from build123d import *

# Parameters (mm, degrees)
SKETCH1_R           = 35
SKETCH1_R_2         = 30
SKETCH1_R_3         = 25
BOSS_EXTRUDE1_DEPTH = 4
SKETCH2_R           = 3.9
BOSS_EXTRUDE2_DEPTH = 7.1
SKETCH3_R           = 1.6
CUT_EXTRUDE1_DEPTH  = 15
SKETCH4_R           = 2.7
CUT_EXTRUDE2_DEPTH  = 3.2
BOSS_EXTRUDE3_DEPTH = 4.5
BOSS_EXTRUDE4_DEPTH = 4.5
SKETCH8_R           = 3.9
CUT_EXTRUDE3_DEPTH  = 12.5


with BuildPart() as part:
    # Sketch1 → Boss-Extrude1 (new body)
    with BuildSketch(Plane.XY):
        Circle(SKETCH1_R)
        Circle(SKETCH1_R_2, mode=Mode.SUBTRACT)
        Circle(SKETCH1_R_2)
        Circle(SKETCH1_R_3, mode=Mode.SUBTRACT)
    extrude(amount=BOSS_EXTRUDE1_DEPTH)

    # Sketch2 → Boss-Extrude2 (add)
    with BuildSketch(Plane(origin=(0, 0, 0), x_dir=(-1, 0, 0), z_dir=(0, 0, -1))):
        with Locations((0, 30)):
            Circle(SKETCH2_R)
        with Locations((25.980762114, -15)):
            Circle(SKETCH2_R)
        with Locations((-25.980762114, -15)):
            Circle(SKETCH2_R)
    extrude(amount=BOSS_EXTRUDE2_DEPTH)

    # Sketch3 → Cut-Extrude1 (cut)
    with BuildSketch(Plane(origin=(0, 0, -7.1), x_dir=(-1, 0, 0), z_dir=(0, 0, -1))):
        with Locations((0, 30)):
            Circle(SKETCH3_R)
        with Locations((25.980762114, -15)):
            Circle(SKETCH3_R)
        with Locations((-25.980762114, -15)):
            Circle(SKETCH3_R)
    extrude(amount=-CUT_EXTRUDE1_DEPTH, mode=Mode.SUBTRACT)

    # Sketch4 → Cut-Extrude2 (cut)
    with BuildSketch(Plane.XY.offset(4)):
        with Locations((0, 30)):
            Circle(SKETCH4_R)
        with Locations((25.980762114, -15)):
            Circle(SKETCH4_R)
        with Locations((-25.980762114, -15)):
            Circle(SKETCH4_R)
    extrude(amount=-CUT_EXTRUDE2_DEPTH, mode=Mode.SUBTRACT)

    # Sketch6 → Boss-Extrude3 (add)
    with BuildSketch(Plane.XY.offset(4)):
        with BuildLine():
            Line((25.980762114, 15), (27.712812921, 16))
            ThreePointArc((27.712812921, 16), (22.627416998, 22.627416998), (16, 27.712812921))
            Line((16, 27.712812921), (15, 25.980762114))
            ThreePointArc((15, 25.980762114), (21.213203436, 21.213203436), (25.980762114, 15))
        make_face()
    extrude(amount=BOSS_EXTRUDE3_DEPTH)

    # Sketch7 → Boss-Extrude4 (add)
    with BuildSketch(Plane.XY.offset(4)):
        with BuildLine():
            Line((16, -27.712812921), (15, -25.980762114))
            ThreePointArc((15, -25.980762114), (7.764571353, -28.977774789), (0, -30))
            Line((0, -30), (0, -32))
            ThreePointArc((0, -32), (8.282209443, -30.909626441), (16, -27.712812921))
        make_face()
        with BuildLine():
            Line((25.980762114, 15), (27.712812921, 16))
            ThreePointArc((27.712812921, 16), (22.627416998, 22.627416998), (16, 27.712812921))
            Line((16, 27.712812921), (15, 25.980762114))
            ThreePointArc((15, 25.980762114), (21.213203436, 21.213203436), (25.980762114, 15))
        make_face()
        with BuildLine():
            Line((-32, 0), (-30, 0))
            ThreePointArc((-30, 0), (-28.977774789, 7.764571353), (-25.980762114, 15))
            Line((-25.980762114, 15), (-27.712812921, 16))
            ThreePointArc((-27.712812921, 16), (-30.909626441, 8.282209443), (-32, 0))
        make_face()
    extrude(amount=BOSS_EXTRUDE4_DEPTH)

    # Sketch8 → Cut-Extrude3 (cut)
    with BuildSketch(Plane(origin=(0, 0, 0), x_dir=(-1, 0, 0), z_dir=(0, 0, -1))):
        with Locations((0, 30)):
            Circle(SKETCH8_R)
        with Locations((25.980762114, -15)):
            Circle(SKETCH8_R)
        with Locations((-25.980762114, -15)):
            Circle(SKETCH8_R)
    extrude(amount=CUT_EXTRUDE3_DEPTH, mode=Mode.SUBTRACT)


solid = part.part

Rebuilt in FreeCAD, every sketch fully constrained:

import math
import FreeCAD as App
import Part
import Sketcher

V = App.Vector
Q = App.Units.Quantity

doc = App.newDocument("Part")
params = doc.addObject("Spreadsheet::Sheet", "Params")
for row, (alias, value) in enumerate([
    ("sketch1_diameter", "70 mm"),
    ("sketch1_diameter2", "50 mm"),
    ("pad1_length", "4 mm"),
    ("sketch2_diameter", "7.8 mm"),
    ("pad2_length", "7.1 mm"),
    ("sketch3_diameter", "3.2 mm"),
    ("pocket1_length", "15 mm"),
    ("sketch4_diameter", "5.4 mm"),
    ("pocket2_length", "3.2 mm"),
    ("sketch5_radius", "32 mm"),
    ("sketch5_radius2", "30 mm"),
    ("pad3_length", "4.5 mm"),
    ("sketch6_radius", "30 mm"),
    ("sketch6_radius2", "32 mm"),
    ("pad4_length", "4.5 mm"),
    ("sketch7_diameter", "7.8 mm"),
    ("pocket3_length", "12.5 mm"),
], start=1):
    params.set(f"A{row}", alias)
    params.set(f"B{row}", "=" + value)
    params.setAlias(f"B{row}", alias)

body = doc.addObject("PartDesign::Body", "Body")

sketch1 = body.newObject("Sketcher::SketchObject", "Sketch")
sketch1.AttachmentSupport = (doc.getObject("XY_Plane"), [""])
sketch1.MapMode = "FlatFace"
sketch1.addGeometry(Part.Circle(V(0, 0, 0), V(0, 0, 1), 35), False)
sketch1.addGeometry(Part.Circle(V(0, 0, 0), V(0, 0, 1), 25), False)
sketch1.addConstraint(Sketcher.Constraint("Coincident", 0, 3, -1, 1))
sketch1.addConstraint(Sketcher.Constraint("Coincident", 1, 3, -1, 1))
sketch1.addConstraint(Sketcher.Constraint("Diameter", 0, 70.0))
sketch1.addConstraint(Sketcher.Constraint("Diameter", 1, 50.0))
sketch1.setExpression("Constraints[2]", "Params.sketch1_diameter")
sketch1.setExpression("Constraints[3]", "Params.sketch1_diameter2")
pad1 = body.newObject("PartDesign::Pad", "Pad")
pad1.Profile = sketch1
pad1.setExpression("Length", "Params.pad1_length")

sketch2 = body.newObject("Sketcher::SketchObject", "Sketch001")
sketch2.AttachmentSupport = (doc.getObject("XY_Plane"), [""])
sketch2.MapMode = "FlatFace"
sketch2.addGeometry(Part.Circle(V(0, 30, 0), V(0, 0, 1), 3.9), False)
sketch2.addGeometry(Part.Circle(V(-26, -15, 0), V(0, 0, 1), 3.9), False)
sketch2.addGeometry(Part.Circle(V(26, -15, 0), V(0, 0, 1), 3.9), False)
sketch2.addConstraint(Sketcher.Constraint("Equal", 0, 1))
sketch2.addConstraint(Sketcher.Constraint("Equal", 1, 2))
sketch2.addConstraint(Sketcher.Constraint("Symmetric", 1, 3, 2, 3, -2))
sketch2.addConstraint(Sketcher.Constraint("PointOnObject", 0, 3, -2))
sketch2.addConstraint(Sketcher.Constraint("Diameter", 0, 7.8))
sketch2.addConstraint(Sketcher.Constraint("DistanceY", -1, 1, 0, 3, 30.0))
sketch2.addConstraint(Sketcher.Constraint("DistanceY", 1, 3, -1, 1, 15.0))
sketch2.addConstraint(Sketcher.Constraint("DistanceX", 1, 3, -1, 1, 25.980762))
sketch2.setExpression("Constraints[4]", "Params.sketch2_diameter")
pad2 = body.newObject("PartDesign::Pad", "Pad001")
pad2.Profile = sketch2
pad2.setExpression("Length", "Params.pad2_length")
pad2.Reversed = True

sketch3 = body.newObject("Sketcher::SketchObject", "Sketch002")
sketch3.AttachmentSupport = (doc.getObject("XY_Plane"), [""])
sketch3.MapMode = "FlatFace"
sketch3.AttachmentOffset = App.Placement(V(0, 0, -7.1), App.Rotation())
sketch3.addGeometry(Part.Circle(V(0, 30, 0), V(0, 0, 1), 1.6), False)
sketch3.addGeometry(Part.Circle(V(-26, -15, 0), V(0, 0, 1), 1.6), False)
sketch3.addGeometry(Part.Circle(V(26, -15, 0), V(0, 0, 1), 1.6), False)
sketch3.addConstraint(Sketcher.Constraint("Equal", 0, 1))
sketch3.addConstraint(Sketcher.Constraint("Equal", 1, 2))
sketch3.addConstraint(Sketcher.Constraint("Symmetric", 1, 3, 2, 3, -2))
sketch3.addConstraint(Sketcher.Constraint("PointOnObject", 0, 3, -2))
sketch3.addConstraint(Sketcher.Constraint("Diameter", 0, 3.2))
sketch3.addConstraint(Sketcher.Constraint("DistanceY", -1, 1, 0, 3, 30.0))
sketch3.addConstraint(Sketcher.Constraint("DistanceY", 1, 3, -1, 1, 15.0))
sketch3.addConstraint(Sketcher.Constraint("DistanceX", 1, 3, -1, 1, 25.980762))
sketch3.setExpression("Constraints[4]", "Params.sketch3_diameter")
pocket1 = body.newObject("PartDesign::Pocket", "Pocket")
pocket1.Profile = sketch3
pocket1.setExpression("Length", "Params.pocket1_length")
pocket1.Reversed = True

sketch4 = body.newObject("Sketcher::SketchObject", "Sketch003")
sketch4.AttachmentSupport = (doc.getObject("XY_Plane"), [""])
sketch4.MapMode = "FlatFace"
sketch4.AttachmentOffset = App.Placement(V(0, 0, 4), App.Rotation())
sketch4.addGeometry(Part.Circle(V(0, 30, 0), V(0, 0, 1), 2.7), False)
sketch4.addGeometry(Part.Circle(V(26, -15, 0), V(0, 0, 1), 2.7), False)
sketch4.addGeometry(Part.Circle(V(-26, -15, 0), V(0, 0, 1), 2.7), False)
sketch4.addConstraint(Sketcher.Constraint("Equal", 0, 1))
sketch4.addConstraint(Sketcher.Constraint("Equal", 1, 2))
sketch4.addConstraint(Sketcher.Constraint("Symmetric", 1, 3, 2, 3, -2))
sketch4.addConstraint(Sketcher.Constraint("PointOnObject", 0, 3, -2))
sketch4.addConstraint(Sketcher.Constraint("Diameter", 0, 5.4))
sketch4.addConstraint(Sketcher.Constraint("DistanceY", -1, 1, 0, 3, 30.0))
sketch4.addConstraint(Sketcher.Constraint("DistanceY", 1, 3, -1, 1, 15.0))
sketch4.addConstraint(Sketcher.Constraint("DistanceX", -1, 1, 1, 3, 25.980762))
sketch4.setExpression("Constraints[4]", "Params.sketch4_diameter")
pocket2 = body.newObject("PartDesign::Pocket", "Pocket001")
pocket2.Profile = sketch4
pocket2.setExpression("Length", "Params.pocket2_length")

sketch5 = body.newObject("Sketcher::SketchObject", "Sketch004")
sketch5.AttachmentSupport = (doc.getObject("XY_Plane"), [""])
sketch5.MapMode = "FlatFace"
sketch5.AttachmentOffset = App.Placement(V(0, 0, 4), App.Rotation())
sketch5.addGeometry(Part.LineSegment(V(26, 15, 0), V(27.7, 16, 0)), False)
sketch5.addGeometry(Part.ArcOfCircle(Part.Circle(V(0, 0, 0), V(0, 0, 1), 32), math.radians(30), math.radians(60)), False)
sketch5.addGeometry(Part.LineSegment(V(16, 27.7, 0), V(15, 26, 0)), False)
sketch5.addGeometry(Part.ArcOfCircle(Part.Circle(V(0, 0, 0), V(0, 0, 1), 30), math.radians(30), math.radians(60)), False)
sketch5.addConstraint(Sketcher.Constraint("Coincident", 0, 2, 1, 1))
sketch5.addConstraint(Sketcher.Constraint("Coincident", 1, 2, 2, 1))
sketch5.addConstraint(Sketcher.Constraint("Coincident", 2, 2, 3, 2))
sketch5.addConstraint(Sketcher.Constraint("Coincident", 3, 1, 0, 1))
sketch5.addConstraint(Sketcher.Constraint("Coincident", 1, 3, -1, 1))
sketch5.addConstraint(Sketcher.Constraint("Coincident", 3, 3, -1, 1))
sketch5.addConstraint(Sketcher.Constraint("Radius", 1, 32.0))
sketch5.addConstraint(Sketcher.Constraint("Radius", 3, 30.0))
sketch5.addConstraint(Sketcher.Constraint("Angle", 0, Q("30 deg")))
sketch5.addConstraint(Sketcher.Constraint("Angle", 2, Q("-120 deg")))
sketch5.addConstraint(Sketcher.Constraint("DistanceY", -1, 1, 0, 2, 16.0))
sketch5.addConstraint(Sketcher.Constraint("DistanceX", -1, 1, 1, 2, 16.0))
sketch5.setExpression("Constraints[6]", "Params.sketch5_radius")
sketch5.setExpression("Constraints[7]", "Params.sketch5_radius2")
pad3 = body.newObject("PartDesign::Pad", "Pad002")
pad3.Profile = sketch5
pad3.setExpression("Length", "Params.pad3_length")

sketch6 = body.newObject("Sketcher::SketchObject", "Sketch005")
sketch6.AttachmentSupport = (doc.getObject("XY_Plane"), [""])
sketch6.MapMode = "FlatFace"
sketch6.AttachmentOffset = App.Placement(V(0, 0, 4), App.Rotation())
sketch6.addGeometry(Part.LineSegment(V(16, -27.7, 0), V(15, -26, 0)), False)
sketch6.addGeometry(Part.ArcOfCircle(Part.Circle(V(0, 0, 0), V(0, 0, 1), 30), math.radians(-90), math.radians(-60)), False)
sketch6.addGeometry(Part.LineSegment(V(0, -30, 0), V(0, -32, 0)), False)
sketch6.addGeometry(Part.ArcOfCircle(Part.Circle(V(0, 0, 0), V(0, 0, 1), 32), math.radians(-90), math.radians(-60)), False)
sketch6.addGeometry(Part.LineSegment(V(26, 15, 0), V(27.7, 16, 0)), False)
sketch6.addGeometry(Part.ArcOfCircle(Part.Circle(V(0, 0, 0), V(0, 0, 1), 32), math.radians(30), math.radians(60)), False)
sketch6.addGeometry(Part.LineSegment(V(16, 27.7, 0), V(15, 26, 0)), False)
sketch6.addGeometry(Part.ArcOfCircle(Part.Circle(V(0, 0, 0), V(0, 0, 1), 30), math.radians(30), math.radians(60)), False)
sketch6.addGeometry(Part.LineSegment(V(-32, 0, 0), V(-30, 0, 0)), False)
sketch6.addGeometry(Part.ArcOfCircle(Part.Circle(V(0, 0, 0), V(0, 0, 1), 30), math.radians(150), math.radians(180)), False)
sketch6.addGeometry(Part.LineSegment(V(-26, 15, 0), V(-27.7, 16, 0)), False)
sketch6.addGeometry(Part.ArcOfCircle(Part.Circle(V(0, 0, 0), V(0, 0, 1), 32), math.radians(150), math.radians(180)), False)
sketch6.addConstraint(Sketcher.Constraint("Coincident", 0, 2, 1, 2))
sketch6.addConstraint(Sketcher.Constraint("Coincident", 1, 1, 2, 1))
sketch6.addConstraint(Sketcher.Constraint("Coincident", 2, 2, 3, 1))
sketch6.addConstraint(Sketcher.Constraint("Coincident", 3, 2, 0, 1))
sketch6.addConstraint(Sketcher.Constraint("Coincident", 4, 2, 5, 1))
sketch6.addConstraint(Sketcher.Constraint("Coincident", 5, 2, 6, 1))
sketch6.addConstraint(Sketcher.Constraint("Coincident", 6, 2, 7, 2))
sketch6.addConstraint(Sketcher.Constraint("Coincident", 7, 1, 4, 1))
sketch6.addConstraint(Sketcher.Constraint("Coincident", 8, 2, 9, 2))
sketch6.addConstraint(Sketcher.Constraint("Coincident", 9, 1, 10, 1))
sketch6.addConstraint(Sketcher.Constraint("Coincident", 10, 2, 11, 1))
sketch6.addConstraint(Sketcher.Constraint("Coincident", 11, 2, 8, 1))
sketch6.addConstraint(Sketcher.Constraint("Vertical", 2))
sketch6.addConstraint(Sketcher.Constraint("Horizontal", 8))
sketch6.addConstraint(Sketcher.Constraint("Coincident", 1, 3, -1, 1))
sketch6.addConstraint(Sketcher.Constraint("Coincident", 3, 3, -1, 1))
sketch6.addConstraint(Sketcher.Constraint("Coincident", 5, 3, -1, 1))
sketch6.addConstraint(Sketcher.Constraint("Coincident", 7, 3, -1, 1))
sketch6.addConstraint(Sketcher.Constraint("Coincident", 9, 3, -1, 1))
sketch6.addConstraint(Sketcher.Constraint("Coincident", 11, 3, -1, 1))
sketch6.addConstraint(Sketcher.Constraint("Equal", 3, 5))
sketch6.addConstraint(Sketcher.Constraint("Equal", 1, 7))
sketch6.addConstraint(Sketcher.Constraint("Equal", 7, 9))
sketch6.addConstraint(Sketcher.Constraint("Equal", 5, 11))
sketch6.addConstraint(Sketcher.Constraint("PointOnObject", 1, 1, -2))
sketch6.addConstraint(Sketcher.Constraint("PointOnObject", 8, 2, -1))
sketch6.addConstraint(Sketcher.Constraint("Perpendicular", 0, 4))
sketch6.addConstraint(Sketcher.Constraint("Perpendicular", 6, 10))
sketch6.addConstraint(Sketcher.Constraint("Horizontal", 7, 1, 9, 1))
sketch6.addConstraint(Sketcher.Constraint("Horizontal", 4, 2, 10, 2))
sketch6.addConstraint(Sketcher.Constraint("Vertical", 3, 2, 5, 2))
sketch6.addConstraint(Sketcher.Constraint("Radius", 1, 30.0))
sketch6.addConstraint(Sketcher.Constraint("Radius", 3, 32.0))
sketch6.addConstraint(Sketcher.Constraint("Angle", 0, Q("120 deg")))
sketch6.addConstraint(Sketcher.Constraint("DistanceX", -1, 1, 0, 2, 15.0))
sketch6.addConstraint(Sketcher.Constraint("DistanceY", -1, 1, 4, 2, 16.0))
sketch6.setExpression("Constraints[31]", "Params.sketch6_radius")
sketch6.setExpression("Constraints[32]", "Params.sketch6_radius2")
pad4 = body.newObject("PartDesign::Pad", "Pad003")
pad4.Profile = sketch6
pad4.setExpression("Length", "Params.pad4_length")

sketch7 = body.newObject("Sketcher::SketchObject", "Sketch006")
sketch7.AttachmentSupport = (doc.getObject("XY_Plane"), [""])
sketch7.MapMode = "FlatFace"
sketch7.addGeometry(Part.Circle(V(0, 30, 0), V(0, 0, 1), 3.9), False)
sketch7.addGeometry(Part.Circle(V(-26, -15, 0), V(0, 0, 1), 3.9), False)
sketch7.addGeometry(Part.Circle(V(26, -15, 0), V(0, 0, 1), 3.9), False)
sketch7.addConstraint(Sketcher.Constraint("Equal", 0, 1))
sketch7.addConstraint(Sketcher.Constraint("Equal", 1, 2))
sketch7.addConstraint(Sketcher.Constraint("Symmetric", 1, 3, 2, 3, -2))
sketch7.addConstraint(Sketcher.Constraint("PointOnObject", 0, 3, -2))
sketch7.addConstraint(Sketcher.Constraint("Diameter", 0, 7.8))
sketch7.addConstraint(Sketcher.Constraint("DistanceY", -1, 1, 0, 3, 30.0))
sketch7.addConstraint(Sketcher.Constraint("DistanceY", 1, 3, -1, 1, 15.0))
sketch7.addConstraint(Sketcher.Constraint("DistanceX", 1, 3, -1, 1, 25.980762))
sketch7.setExpression("Constraints[4]", "Params.sketch7_diameter")
pocket3 = body.newObject("PartDesign::Pocket", "Pocket002")
pocket3.Profile = sketch7
pocket3.setExpression("Length", "Params.pocket3_length")

doc.recompute()
